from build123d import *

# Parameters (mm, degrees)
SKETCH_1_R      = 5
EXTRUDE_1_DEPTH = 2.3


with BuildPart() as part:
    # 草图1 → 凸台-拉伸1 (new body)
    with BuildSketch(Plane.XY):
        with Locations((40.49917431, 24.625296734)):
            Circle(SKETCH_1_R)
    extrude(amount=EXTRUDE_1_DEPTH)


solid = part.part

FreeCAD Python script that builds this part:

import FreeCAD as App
import Part
import Sketcher

doc = App.newDocument("Part")
params = doc.addObject("Spreadsheet::Sheet", "Params")
for row, (alias, value) in enumerate([
    ("sketch1_diameter", "10 mm"),
    ("pad1_length", "2.3 mm"),
], start=1):
    params.set(f"A{row}", alias)
    params.set(f"B{row}", "=" + value)
    params.setAlias(f"B{row}", alias)

body = doc.addObject("PartDesign::Body", "Body")

sketch1 = body.newObject("Sketcher::SketchObject", "Sketch")
sketch1.AttachmentSupport = (doc.getObject("XY_Plane"), [""])
sketch1.MapMode = "FlatFace"
sketch1.addGeometry(Part.Circle(App.Vector(40, 25, 0), App.Vector(0, 0, 1), 5), False)
sketch1.addConstraint(Sketcher.Constraint("Diameter", 0, 10.0))
sketch1.addConstraint(Sketcher.Constraint("DistanceX", -1, 1, 0, 3, 40.499174))
sketch1.addConstraint(Sketcher.Constraint("DistanceY", -1, 1, 0, 3, 24.625297))
sketch1.setExpression("Constraints[0]", "Params.sketch1_diameter")
pad1 = body.newObject("PartDesign::Pad", "Pad")
pad1.Profile = sketch1
pad1.setExpression("Length", "Params.pad1_length")

doc.recompute()
